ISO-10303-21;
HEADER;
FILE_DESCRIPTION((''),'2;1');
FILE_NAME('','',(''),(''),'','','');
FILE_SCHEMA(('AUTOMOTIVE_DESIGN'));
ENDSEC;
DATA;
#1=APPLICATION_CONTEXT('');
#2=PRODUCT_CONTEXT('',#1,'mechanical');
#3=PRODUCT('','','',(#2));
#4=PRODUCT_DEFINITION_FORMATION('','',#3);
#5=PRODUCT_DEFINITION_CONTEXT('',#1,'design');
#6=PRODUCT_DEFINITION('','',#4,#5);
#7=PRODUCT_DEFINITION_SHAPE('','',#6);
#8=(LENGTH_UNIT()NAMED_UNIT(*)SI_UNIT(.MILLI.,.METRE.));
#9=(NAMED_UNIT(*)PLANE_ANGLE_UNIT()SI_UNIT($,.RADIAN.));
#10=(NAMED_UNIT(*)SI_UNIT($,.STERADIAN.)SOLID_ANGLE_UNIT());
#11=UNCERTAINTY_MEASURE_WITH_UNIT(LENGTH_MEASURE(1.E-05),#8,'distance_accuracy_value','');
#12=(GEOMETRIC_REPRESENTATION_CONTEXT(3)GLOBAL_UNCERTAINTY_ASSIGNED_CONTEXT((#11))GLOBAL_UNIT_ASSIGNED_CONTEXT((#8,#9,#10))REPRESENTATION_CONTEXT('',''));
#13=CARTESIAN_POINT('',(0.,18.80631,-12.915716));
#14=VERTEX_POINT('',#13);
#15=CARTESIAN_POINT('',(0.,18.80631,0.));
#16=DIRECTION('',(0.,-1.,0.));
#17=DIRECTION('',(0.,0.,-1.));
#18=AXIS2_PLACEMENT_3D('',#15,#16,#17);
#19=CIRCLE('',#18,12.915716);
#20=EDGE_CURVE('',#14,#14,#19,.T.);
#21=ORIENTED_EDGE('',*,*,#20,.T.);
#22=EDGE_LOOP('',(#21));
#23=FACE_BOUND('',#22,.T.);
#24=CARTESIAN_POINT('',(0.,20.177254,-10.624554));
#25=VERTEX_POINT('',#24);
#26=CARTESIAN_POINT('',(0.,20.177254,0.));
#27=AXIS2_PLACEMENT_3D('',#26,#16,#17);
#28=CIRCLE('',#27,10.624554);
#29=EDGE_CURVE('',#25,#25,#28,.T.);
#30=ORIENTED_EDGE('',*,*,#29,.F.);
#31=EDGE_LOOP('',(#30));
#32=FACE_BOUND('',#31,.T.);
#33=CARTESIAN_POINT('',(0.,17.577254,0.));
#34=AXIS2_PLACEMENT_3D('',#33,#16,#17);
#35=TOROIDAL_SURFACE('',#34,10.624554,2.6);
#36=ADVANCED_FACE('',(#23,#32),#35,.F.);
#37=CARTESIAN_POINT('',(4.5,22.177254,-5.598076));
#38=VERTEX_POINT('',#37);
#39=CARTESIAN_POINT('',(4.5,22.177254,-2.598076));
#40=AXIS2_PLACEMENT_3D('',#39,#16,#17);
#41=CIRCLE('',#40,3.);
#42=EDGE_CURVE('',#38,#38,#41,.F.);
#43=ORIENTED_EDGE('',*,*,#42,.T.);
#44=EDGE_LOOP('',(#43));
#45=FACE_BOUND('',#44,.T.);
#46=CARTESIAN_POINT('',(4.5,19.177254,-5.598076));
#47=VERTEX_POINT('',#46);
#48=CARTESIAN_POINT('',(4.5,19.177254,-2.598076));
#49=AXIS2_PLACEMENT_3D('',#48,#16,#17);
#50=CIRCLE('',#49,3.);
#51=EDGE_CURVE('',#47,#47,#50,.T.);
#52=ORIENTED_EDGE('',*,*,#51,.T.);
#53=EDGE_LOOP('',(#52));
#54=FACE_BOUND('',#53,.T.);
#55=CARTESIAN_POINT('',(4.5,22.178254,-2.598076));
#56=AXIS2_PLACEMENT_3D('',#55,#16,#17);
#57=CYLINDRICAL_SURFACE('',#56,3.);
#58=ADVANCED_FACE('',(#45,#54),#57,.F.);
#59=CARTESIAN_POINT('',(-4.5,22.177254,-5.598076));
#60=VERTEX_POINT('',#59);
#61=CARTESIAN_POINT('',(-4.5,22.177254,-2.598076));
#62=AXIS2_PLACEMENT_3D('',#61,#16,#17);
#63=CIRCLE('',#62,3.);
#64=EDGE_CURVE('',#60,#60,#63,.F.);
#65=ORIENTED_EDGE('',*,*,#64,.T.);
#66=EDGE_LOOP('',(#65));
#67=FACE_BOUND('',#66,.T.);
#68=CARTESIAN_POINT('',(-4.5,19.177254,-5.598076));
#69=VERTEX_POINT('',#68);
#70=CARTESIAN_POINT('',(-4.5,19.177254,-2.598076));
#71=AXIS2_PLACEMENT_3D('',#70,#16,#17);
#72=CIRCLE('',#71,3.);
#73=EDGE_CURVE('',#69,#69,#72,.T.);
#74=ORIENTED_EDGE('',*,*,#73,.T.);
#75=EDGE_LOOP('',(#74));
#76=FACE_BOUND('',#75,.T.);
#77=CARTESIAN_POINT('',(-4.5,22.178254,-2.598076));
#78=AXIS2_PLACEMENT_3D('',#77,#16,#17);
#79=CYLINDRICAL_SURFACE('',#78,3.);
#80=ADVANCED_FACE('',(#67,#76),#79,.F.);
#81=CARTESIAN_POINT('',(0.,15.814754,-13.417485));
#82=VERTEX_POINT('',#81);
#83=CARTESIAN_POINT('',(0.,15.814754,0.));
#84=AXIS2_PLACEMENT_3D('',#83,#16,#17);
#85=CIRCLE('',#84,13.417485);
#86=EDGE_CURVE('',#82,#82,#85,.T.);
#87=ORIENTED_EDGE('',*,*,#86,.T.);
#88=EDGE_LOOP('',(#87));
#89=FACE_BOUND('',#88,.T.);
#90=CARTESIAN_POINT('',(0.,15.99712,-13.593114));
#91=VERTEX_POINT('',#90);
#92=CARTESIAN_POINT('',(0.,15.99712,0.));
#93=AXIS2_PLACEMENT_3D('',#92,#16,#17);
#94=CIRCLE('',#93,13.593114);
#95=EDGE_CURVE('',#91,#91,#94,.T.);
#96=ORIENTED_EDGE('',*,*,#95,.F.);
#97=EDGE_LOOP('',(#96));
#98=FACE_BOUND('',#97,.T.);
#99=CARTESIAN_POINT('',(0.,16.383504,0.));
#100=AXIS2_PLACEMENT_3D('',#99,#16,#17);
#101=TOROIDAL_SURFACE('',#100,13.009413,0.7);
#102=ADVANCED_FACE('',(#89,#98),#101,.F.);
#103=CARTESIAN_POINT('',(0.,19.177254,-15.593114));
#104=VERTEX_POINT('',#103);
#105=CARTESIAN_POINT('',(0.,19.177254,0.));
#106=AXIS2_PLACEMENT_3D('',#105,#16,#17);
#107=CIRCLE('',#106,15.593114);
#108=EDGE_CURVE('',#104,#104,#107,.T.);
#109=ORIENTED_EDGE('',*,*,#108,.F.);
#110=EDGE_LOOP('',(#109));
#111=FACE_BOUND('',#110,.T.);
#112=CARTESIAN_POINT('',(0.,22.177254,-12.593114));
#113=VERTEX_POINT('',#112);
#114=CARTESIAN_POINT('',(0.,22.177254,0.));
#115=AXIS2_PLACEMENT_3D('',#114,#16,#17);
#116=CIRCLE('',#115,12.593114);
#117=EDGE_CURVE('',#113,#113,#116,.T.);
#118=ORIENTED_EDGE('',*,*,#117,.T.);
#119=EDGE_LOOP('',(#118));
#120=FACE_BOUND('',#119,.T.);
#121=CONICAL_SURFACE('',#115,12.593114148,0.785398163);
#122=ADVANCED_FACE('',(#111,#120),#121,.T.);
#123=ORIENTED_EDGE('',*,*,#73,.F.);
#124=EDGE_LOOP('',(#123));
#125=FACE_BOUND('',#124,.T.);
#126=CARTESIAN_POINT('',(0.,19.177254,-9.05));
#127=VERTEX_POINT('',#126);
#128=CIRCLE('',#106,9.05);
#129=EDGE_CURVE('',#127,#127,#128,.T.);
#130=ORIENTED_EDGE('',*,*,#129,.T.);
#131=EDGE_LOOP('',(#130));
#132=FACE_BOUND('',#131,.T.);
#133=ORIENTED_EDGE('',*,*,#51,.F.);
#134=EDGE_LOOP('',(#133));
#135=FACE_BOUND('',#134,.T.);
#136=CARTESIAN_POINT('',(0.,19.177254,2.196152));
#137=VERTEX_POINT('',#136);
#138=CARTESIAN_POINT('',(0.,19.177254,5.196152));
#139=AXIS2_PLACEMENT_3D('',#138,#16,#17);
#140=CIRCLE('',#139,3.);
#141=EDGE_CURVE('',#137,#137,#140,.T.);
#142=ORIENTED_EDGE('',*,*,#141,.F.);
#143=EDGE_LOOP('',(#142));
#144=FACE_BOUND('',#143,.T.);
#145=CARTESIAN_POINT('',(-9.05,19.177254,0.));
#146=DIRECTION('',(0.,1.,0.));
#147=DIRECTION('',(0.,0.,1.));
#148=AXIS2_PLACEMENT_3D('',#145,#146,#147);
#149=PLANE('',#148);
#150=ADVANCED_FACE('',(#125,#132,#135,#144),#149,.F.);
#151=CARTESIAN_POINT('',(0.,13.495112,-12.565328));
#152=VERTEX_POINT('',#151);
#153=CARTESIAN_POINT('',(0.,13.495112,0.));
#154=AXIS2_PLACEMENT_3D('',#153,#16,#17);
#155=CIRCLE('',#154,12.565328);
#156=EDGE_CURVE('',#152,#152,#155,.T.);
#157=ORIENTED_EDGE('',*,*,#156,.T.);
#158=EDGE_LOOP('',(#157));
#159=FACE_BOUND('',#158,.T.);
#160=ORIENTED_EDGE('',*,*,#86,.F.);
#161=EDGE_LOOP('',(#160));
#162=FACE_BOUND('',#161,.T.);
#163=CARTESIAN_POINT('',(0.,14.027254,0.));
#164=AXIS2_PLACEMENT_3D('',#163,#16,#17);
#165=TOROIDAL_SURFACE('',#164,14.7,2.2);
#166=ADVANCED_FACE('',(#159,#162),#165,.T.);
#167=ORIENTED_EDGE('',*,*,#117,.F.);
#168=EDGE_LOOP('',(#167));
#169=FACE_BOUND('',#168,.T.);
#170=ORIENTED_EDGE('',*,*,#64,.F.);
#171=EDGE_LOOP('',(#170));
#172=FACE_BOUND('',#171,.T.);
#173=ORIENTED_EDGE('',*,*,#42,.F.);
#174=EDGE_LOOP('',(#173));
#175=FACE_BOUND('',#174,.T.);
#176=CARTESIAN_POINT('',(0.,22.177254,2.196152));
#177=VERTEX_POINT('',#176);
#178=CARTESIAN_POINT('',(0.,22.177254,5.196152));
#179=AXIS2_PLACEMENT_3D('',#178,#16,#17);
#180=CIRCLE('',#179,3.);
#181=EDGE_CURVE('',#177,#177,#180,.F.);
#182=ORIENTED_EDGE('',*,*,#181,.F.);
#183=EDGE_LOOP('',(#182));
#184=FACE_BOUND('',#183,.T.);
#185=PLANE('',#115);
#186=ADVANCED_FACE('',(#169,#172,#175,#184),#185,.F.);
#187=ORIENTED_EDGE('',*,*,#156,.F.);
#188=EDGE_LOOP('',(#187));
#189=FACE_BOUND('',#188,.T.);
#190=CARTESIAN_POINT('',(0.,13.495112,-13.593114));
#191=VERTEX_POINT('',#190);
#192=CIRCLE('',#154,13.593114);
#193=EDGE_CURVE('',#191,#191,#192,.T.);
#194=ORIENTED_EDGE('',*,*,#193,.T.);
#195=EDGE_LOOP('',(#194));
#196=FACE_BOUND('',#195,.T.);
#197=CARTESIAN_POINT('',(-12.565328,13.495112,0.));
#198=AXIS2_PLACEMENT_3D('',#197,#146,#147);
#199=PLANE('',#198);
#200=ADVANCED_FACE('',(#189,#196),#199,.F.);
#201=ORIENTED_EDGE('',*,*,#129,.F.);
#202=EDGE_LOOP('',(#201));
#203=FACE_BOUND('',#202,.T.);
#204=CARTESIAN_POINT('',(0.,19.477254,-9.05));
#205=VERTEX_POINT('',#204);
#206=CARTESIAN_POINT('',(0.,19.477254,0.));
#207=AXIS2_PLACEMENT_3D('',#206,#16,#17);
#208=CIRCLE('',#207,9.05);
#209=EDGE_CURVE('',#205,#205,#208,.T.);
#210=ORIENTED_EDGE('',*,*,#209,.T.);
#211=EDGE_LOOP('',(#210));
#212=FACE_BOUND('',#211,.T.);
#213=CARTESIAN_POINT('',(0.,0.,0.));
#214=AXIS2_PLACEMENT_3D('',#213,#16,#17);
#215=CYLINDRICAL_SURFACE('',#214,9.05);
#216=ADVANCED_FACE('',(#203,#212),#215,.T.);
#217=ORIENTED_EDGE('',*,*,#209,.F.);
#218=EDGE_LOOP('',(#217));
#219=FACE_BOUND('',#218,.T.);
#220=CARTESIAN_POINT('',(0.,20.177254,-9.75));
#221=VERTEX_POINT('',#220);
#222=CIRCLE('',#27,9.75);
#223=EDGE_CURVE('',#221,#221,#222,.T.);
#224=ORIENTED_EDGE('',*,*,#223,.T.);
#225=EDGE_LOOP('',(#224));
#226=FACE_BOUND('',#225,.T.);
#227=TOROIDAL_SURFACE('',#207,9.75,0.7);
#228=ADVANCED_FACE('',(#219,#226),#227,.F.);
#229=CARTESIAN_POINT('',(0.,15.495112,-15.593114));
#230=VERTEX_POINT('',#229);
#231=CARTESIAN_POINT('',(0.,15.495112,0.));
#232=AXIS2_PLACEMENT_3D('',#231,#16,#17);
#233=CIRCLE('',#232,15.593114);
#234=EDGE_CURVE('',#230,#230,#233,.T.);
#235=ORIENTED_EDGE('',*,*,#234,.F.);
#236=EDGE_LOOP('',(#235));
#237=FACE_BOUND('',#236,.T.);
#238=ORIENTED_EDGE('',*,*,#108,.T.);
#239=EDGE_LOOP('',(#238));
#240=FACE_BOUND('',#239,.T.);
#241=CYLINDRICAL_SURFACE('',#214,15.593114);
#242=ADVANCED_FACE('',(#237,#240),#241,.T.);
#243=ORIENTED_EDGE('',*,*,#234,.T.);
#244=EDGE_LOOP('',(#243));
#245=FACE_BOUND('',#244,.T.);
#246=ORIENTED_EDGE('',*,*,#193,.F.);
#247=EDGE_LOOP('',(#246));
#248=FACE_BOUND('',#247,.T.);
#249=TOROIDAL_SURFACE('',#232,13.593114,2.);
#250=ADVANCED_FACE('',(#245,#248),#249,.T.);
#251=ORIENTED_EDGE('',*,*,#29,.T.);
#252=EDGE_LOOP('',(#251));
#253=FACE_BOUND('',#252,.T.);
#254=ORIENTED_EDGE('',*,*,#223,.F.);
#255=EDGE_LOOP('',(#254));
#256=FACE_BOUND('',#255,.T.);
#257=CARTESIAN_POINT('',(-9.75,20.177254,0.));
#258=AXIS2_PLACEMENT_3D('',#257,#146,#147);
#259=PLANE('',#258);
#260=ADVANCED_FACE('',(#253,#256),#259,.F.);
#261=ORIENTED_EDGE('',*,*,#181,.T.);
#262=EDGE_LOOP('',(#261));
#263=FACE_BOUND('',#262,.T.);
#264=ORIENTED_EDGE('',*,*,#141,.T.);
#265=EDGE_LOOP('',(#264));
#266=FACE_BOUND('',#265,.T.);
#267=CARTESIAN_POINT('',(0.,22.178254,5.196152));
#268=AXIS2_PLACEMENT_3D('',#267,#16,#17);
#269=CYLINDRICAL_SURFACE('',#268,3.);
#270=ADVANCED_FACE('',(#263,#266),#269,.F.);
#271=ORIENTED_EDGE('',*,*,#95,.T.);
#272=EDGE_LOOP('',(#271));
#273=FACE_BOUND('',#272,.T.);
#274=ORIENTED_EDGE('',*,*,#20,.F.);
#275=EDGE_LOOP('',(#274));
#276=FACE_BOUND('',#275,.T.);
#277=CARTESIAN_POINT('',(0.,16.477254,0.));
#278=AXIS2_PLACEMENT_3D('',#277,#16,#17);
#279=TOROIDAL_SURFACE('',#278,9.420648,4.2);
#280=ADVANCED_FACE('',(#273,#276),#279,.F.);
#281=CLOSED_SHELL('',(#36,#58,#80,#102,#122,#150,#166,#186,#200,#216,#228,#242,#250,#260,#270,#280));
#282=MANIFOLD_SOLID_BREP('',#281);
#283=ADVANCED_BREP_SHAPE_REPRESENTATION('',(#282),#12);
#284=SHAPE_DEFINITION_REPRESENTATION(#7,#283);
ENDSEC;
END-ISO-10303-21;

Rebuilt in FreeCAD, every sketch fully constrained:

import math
import FreeCAD as App
import Part
import Sketcher

V = App.Vector
Q = App.Units.Quantity

doc = App.newDocument("Part")
body = doc.addObject("PartDesign::Body", "Body")

sketch1 = body.newObject("Sketcher::SketchObject", "Sketch")
sketch1.AttachmentSupport = (doc.getObject("XY_Plane"), [""])
sketch1.MapMode = "FlatFace"
sketch1.addGeometry([
    Part.LineSegment(V(-12.59, 22.18, 0), V(-15.59, 19.18, 0)),
    Part.LineSegment(V(-15.59, 19.18, 0), V(-15.59, 15.5, 0)),
    Part.ArcOfCircle(Part.Circle(V(-13.59, 15.5, 0), V(0, 0, 1), 2), math.radians(-180), math.radians(-90)),
    Part.LineSegment(V(-13.59, 13.5, 0), V(-12.57, 13.5, 0)),
    Part.ArcOfCircle(Part.Circle(V(-14.7, 14.03, 0), V(0, 0, 1), 2.2), math.radians(-14), math.radians(54)),
    Part.ArcOfCircle(Part.Circle(V(-13.01, 16.38, 0), V(0, 0, 1), 0.7), math.radians(-146), math.radians(-126)),
    Part.ArcOfCircle(Part.Circle(V(-9.42, 16.48, 0), V(0, 0, 1), 4.2), math.radians(146), math.radians(187)),
    Part.ArcOfCircle(Part.Circle(V(-10.62, 17.58, 0), V(0, 0, 1), 2.6), math.radians(90), math.radians(152)),
    Part.LineSegment(V(-10.62, 20.18, 0), V(-9.75, 20.18, 0)),
    Part.ArcOfCircle(Part.Circle(V(-9.75, 19.48, 0), V(0, 0, 1), 0.7), math.radians(0), math.radians(90)),
    Part.LineSegment(V(-9.05, 19.48, 0), V(-9.05, 19.18, 0)),
    Part.LineSegment(V(-9.05, 19.18, 0), V(0, 19.18, 0)),
    Part.LineSegment(V(0, 19.18, 0), V(0, 22.18, 0)),
    Part.LineSegment(V(0, 22.18, 0), V(-12.59, 22.18, 0)),
], False)
sketch1.addConstraint([
    Sketcher.Constraint("Coincident", 0, 2, 1, 1),
    Sketcher.Constraint("Tangent", 1, 2, 2, 1),
    Sketcher.Constraint("Tangent", 2, 2, 3, 1),
    Sketcher.Constraint("Coincident", 3, 2, 4, 1),
    Sketcher.Constraint("Tangent", 4, 2, 5, 2),
    Sketcher.Constraint("Coincident", 5, 1, 6, 2),
    Sketcher.Constraint("Coincident", 6, 1, 7, 2),
    Sketcher.Constraint("Tangent", 7, 1, 8, 1),
    Sketcher.Constraint("Tangent", 8, 2, 9, 2),
    Sketcher.Constraint("Tangent", 9, 1, 10, 1),
    Sketcher.Constraint("Coincident", 10, 2, 11, 1),
    Sketcher.Constraint("Coincident", 11, 2, 12, 1),
    Sketcher.Constraint("Coincident", 12, 2, 13, 1),
    Sketcher.Constraint("Coincident", 13, 2, 0, 1),
    Sketcher.Constraint("Vertical", 1),
    Sketcher.Constraint("Horizontal", 3),
    Sketcher.Constraint("Horizontal", 8),
    Sketcher.Constraint("Vertical", 10),
    Sketcher.Constraint("Horizontal", 11),
    Sketcher.Constraint("Vertical", 12),
    Sketcher.Constraint("Horizontal", 13),
    Sketcher.Constraint("Equal", 5, 9),
    Sketcher.Constraint("PointOnObject", 11, 2, -2),
    Sketcher.Constraint("Horizontal", 0, 2, 10, 2),
    Sketcher.Constraint("Vertical", 2, 2, 5, 1),
    Sketcher.Constraint("Radius", 2, 2.0),
    Sketcher.Constraint("Radius", 4, 2.2),
    Sketcher.Constraint("Radius", 5, 0.7),
    Sketcher.Constraint("Radius", 6, 4.2),
    Sketcher.Constraint("Radius", 7, 2.6),
    Sketcher.Constraint("DistanceY", 12, 1, 12, 2, 3.0),
    Sketcher.Constraint("Angle", 0, Q("-135 deg")),
    Sketcher.Constraint("DistanceY", 10, 2, 10, 1, 0.3),
    Sketcher.Constraint("DistanceY", 6, 3, 9, 3, 3.0),
    Sketcher.Constraint("DistanceX", 11, 1, 11, 2, 9.05),
    Sketcher.Constraint("DistanceX", 4, 3, -1, 1, 14.7),
    Sketcher.Constraint("DistanceY", 4, 3, 6, 3, 2.45),
    Sketcher.Constraint("DistanceX", 2, 3, 5, 3, 0.583702),
    Sketcher.Constraint("DistanceY", 4, 3, 4, 2, 1.7875),
    Sketcher.Constraint("DistanceX", 3, 1, 3, 2, 1.027786),
    Sketcher.Constraint("DistanceX", 8, 1, 8, 2, 0.874554),
    Sketcher.Constraint("DistanceY", -1, 1, 2, 3, 15.495112),
])
revolution = body.newObject("PartDesign::Revolution", "Revolution")
revolution.Profile = sketch1
revolution.ReferenceAxis = (sketch1, ["V_Axis"])
revolution.Angle = 360

sketch2 = body.newObject("Sketcher::SketchObject", "Sketch001")
sketch2.AttachmentSupport = (doc.getObject("XZ_Plane"), [""])
sketch2.MapMode = "FlatFace"
sketch2.AttachmentOffset = App.Placement(V(0, 0, -19.177254), App.Rotation())
sketch2.addGeometry(Part.Circle(V(-4.5, -2.6, 0), V(0, 0, 1), 3), False)
sketch2.addConstraint([
    Sketcher.Constraint("Diameter", 0, 6.0),
    Sketcher.Constraint("DistanceX", 0, 3, -1, 1, 4.5),
    Sketcher.Constraint("DistanceY", 0, 3, -1, 1, 2.598076),
])
pocket1 = body.newObject("PartDesign::Pocket", "Pocket")
pocket1.Profile = sketch2
pocket1.Type = "UpToFirst"

sketch3 = body.newObject("Sketcher::SketchObject", "Sketch002")
sketch3.AttachmentSupport = (doc.getObject("XZ_Plane"), [""])
sketch3.MapMode = "FlatFace"
sketch3.AttachmentOffset = App.Placement(V(0, 0, -19.177254), App.Rotation())
sketch3.addGeometry(Part.Circle(V(4.5, -2.6, 0), V(0, 0, 1), 3), False)
sketch3.addConstraint([
    Sketcher.Constraint("Diameter", 0, 6.0),
    Sketcher.Constraint("DistanceX", -1, 1, 0, 3, 4.5),
    Sketcher.Constraint("DistanceY", 0, 3, -1, 1, 2.598076),
])
pocket2 = body.newObject("PartDesign::Pocket", "Pocket001")
pocket2.Profile = sketch3
pocket2.Type = "UpToFirst"

sketch4 = body.newObject("Sketcher::SketchObject", "Sketch003")
sketch4.AttachmentSupport = (doc.getObject("XZ_Plane"), [""])
sketch4.MapMode = "FlatFace"
sketch4.AttachmentOffset = App.Placement(V(0, 0, -19.177254), App.Rotation())
sketch4.addGeometry(Part.Circle(V(0, 5.2, 0), V(0, 0, 1), 3), False)
sketch4.addConstraint([
    Sketcher.Constraint("PointOnObject", 0, 3, -2),
    Sketcher.Constraint("Diameter", 0, 6.0),
    Sketcher.Constraint("DistanceY", -1, 1, 0, 3, 5.196152),
])
pocket3 = body.newObject("PartDesign::Pocket", "Pocket002")
pocket3.Profile = sketch4
pocket3.Type = "UpToFirst"

doc.recompute()
